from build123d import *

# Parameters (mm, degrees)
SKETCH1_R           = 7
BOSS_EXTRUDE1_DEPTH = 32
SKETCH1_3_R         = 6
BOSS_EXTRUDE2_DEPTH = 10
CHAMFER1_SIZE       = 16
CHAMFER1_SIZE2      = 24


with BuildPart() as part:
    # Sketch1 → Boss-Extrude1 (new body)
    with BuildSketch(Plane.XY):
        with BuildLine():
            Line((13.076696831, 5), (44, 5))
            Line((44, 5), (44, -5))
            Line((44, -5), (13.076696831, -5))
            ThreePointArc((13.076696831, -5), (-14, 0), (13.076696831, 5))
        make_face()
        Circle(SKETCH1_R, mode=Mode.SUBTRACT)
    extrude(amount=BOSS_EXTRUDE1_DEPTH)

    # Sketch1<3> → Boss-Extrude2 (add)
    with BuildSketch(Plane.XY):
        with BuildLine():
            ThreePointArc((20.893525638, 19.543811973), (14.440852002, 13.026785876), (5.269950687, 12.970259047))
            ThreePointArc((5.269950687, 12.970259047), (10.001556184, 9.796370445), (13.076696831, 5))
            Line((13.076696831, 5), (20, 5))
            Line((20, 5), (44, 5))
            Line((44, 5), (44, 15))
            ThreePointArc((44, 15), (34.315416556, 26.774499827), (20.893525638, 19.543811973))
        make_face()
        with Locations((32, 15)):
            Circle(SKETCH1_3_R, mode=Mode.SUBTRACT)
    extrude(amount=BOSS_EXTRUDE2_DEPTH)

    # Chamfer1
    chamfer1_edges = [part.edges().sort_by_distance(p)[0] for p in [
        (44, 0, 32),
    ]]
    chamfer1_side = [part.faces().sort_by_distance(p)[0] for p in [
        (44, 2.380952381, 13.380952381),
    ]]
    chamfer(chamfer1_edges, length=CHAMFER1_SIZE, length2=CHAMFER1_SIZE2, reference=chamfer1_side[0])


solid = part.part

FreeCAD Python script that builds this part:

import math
import FreeCAD as App
import Part
import Sketcher

V = App.Vector
Q = App.Units.Quantity


def edges_at(feature, points):
    """Names of the edges that pass closest to the given points."""
    edges = feature.Shape.Edges
    near = lambda p: min(range(len(edges)), key=lambda i: edges[i].distToShape(Part.Vertex(*p))[0])
    return sorted({f"Edge{near(p) + 1}" for p in points})

doc = App.newDocument("Part")
body = doc.addObject("PartDesign::Body", "Body")

# Sketch on XY plane
sketch1 = doc.addObject("Sketcher::SketchObject", "Sketch")
body.addObject(sketch1)
sketch1.AttachmentSupport = (doc.XY_Plane, [""])
sketch1.MapMode = "FlatFace"
sketch1.addGeometry([
    Part.LineSegment(V(44, 5, 0), V(13, 5, 0)),  # 0
    Part.ArcOfCircle(Part.Circle(V(0, 0, 0), V(0, 0, 1), 14), math.radians(21), math.radians(339)),  # 1
    Part.LineSegment(V(13, -5, 0), V(44, -5, 0)),  # 2
    Part.LineSegment(V(44, -5, 0), V(44, 5, 0)),  # 3
    Part.Circle(V(0, 0, 0), V(0, 0, 1), 7),  # 4
], False)
sketch1.addConstraint([
    Sketcher.Constraint("Coincident", 0, 2, 1, 1),
    Sketcher.Constraint("Coincident", 1, 2, 2, 1),
    Sketcher.Constraint("Coincident", 2, 2, 3, 1),
    Sketcher.Constraint("Coincident", 3, 2, 0, 1),
    Sketcher.Constraint("Horizontal", 0),
    Sketcher.Constraint("Horizontal", 2),
    Sketcher.Constraint("Vertical", 3),
    Sketcher.Constraint("Coincident", 1, 3, -1, 1),
    Sketcher.Constraint("Coincident", 4, 3, -1, 1),
    Sketcher.Constraint("Vertical", 0, 2, 1, 2),
    Sketcher.Constraint("Diameter", 4, Q("14 mm")),
    Sketcher.Constraint("Radius", 1, Q("14 mm")),
    Sketcher.Constraint("DistanceY", 3, 1, 3, 2, Q("10 mm")),
    Sketcher.Constraint("DistanceX", -1, 1, 2, 2, Q("44 mm")),
])
pad1 = doc.addObject("PartDesign::Pad", "Pad")
body.addObject(pad1)
pad1.Profile = sketch1
pad1.Length = 32

# Sketch on XY plane
sketch2 = doc.addObject("Sketcher::SketchObject", "Sketch001")
body.addObject(sketch2)
sketch2.AttachmentSupport = (doc.XY_Plane, [""])
sketch2.MapMode = "FlatFace"
sketch2.addGeometry([
    Part.ArcOfCircle(Part.Circle(V(10, 24, 0), V(0, 0, 1), 12), math.radians(-112), math.radians(-22)),  # 0
    Part.ArcOfCircle(Part.Circle(V(0, 0, 0), V(0, 0, 1), 14), math.radians(21), math.radians(68)),  # 1
    Part.LineSegment(V(13, 5, 0), V(44, 5, 0)),  # 2
    Part.LineSegment(V(44, 5, 0), V(44, 15, 0)),  # 3
    Part.ArcOfCircle(Part.Circle(V(32, 15, 0), V(0, 0, 1), 12), math.radians(0), math.radians(158)),  # 4
    Part.Circle(V(32, 15, 0), V(0, 0, 1), 6),  # 5
], False)
sketch2.addConstraint([
    Sketcher.Constraint("Tangent", 0, 1, 1, 2),
    Sketcher.Constraint("Coincident", 1, 1, 2, 1),
    Sketcher.Constraint("Coincident", 2, 2, 3, 1),
    Sketcher.Constraint("Tangent", 3, 2, 4, 1),
    Sketcher.Constraint("Tangent", 4, 2, 0, 2),
    Sketcher.Constraint("Horizontal", 2),
    Sketcher.Constraint("Vertical", 3),
    Sketcher.Constraint("Coincident", 1, 3, -1, 1),
    Sketcher.Constraint("Coincident", 5, 3, 4, 3),
    Sketcher.Constraint("Equal", 0, 4),
    Sketcher.Constraint("Diameter", 5, Q("12 mm")),
    Sketcher.Constraint("Radius", 0, Q("12 mm")),
    Sketcher.Constraint("Radius", 1, Q("14 mm")),
    Sketcher.Constraint("DistanceY", 3, 1, 3, 2, Q("10 mm")),
    Sketcher.Constraint("DistanceX", -1, 1, 4, 3, Q("32 mm")),
    Sketcher.Constraint("DistanceY", -1, 1, 4, 3, Q("15 mm")),
])
pad2 = doc.addObject("PartDesign::Pad", "Pad001")
body.addObject(pad2)
pad2.Profile = sketch2
pad2.Length = 10
doc.recompute()

chamfer = doc.addObject("PartDesign::Chamfer", "Chamfer")
body.addObject(chamfer)
chamfer.Base = (pad2, edges_at(pad2, [(44, 0, 32)]))
chamfer.ChamferType = "Two distances"
chamfer.Size = 16
chamfer.Size2 = 24
chamfer.FlipDirection = True

doc.recompute()
